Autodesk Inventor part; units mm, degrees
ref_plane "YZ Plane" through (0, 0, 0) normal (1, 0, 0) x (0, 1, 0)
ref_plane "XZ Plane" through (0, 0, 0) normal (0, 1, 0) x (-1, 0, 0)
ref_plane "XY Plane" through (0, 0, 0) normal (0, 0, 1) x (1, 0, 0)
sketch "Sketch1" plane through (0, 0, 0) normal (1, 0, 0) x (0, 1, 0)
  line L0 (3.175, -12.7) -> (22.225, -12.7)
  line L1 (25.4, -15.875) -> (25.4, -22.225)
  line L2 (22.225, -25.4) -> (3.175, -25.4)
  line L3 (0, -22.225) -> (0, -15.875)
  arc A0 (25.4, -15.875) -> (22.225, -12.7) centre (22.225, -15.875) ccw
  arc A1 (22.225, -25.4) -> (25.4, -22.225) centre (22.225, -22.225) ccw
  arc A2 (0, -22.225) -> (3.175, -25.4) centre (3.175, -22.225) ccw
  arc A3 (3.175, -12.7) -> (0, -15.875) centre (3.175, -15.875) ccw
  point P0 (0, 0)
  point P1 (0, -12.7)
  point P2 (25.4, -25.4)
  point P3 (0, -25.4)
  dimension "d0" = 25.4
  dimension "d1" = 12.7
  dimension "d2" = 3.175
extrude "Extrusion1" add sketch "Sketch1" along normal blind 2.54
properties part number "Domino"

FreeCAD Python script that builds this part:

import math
import FreeCAD as App
import Part
import Sketcher

V = App.Vector
Q = App.Units.Quantity

doc = App.newDocument("Part")
body = doc.addObject("PartDesign::Body", "Body")

# Sketch on YZ plane
sketch1 = body.newObject("Sketcher::SketchObject", "Sketch")
sketch1.AttachmentSupport = (doc.getObject("YZ_Plane"), [""])
sketch1.MapMode = "FlatFace"
sketch1.addGeometry(Part.LineSegment(V(22.225, -12.7, 0), V(3.175, -12.7, 0)), False)
sketch1.addGeometry(Part.ArcOfCircle(Part.Circle(V(3.175, -15.875, 0), V(0, 0, 1), 3.175), math.radians(90), math.radians(180)), False)
sketch1.addGeometry(Part.LineSegment(V(0, -15.875, 0), V(0, -22.225, 0)), False)
sketch1.addGeometry(Part.ArcOfCircle(Part.Circle(V(3.175, -22.225, 0), V(0, 0, 1), 3.175), math.radians(180), math.radians(270)), False)
sketch1.addGeometry(Part.LineSegment(V(3.175, -25.4, 0), V(22.225, -25.4, 0)), False)
sketch1.addGeometry(Part.ArcOfCircle(Part.Circle(V(22.225, -22.225, 0), V(0, 0, 1), 3.175), math.radians(-90), math.radians(0)), False)
sketch1.addGeometry(Part.LineSegment(V(25.4, -22.225, 0), V(25.4, -15.875, 0)), False)
sketch1.addGeometry(Part.ArcOfCircle(Part.Circle(V(22.225, -15.875, 0), V(0, 0, 1), 3.175), math.radians(0), math.radians(90)), False)
sketch1.addConstraint(Sketcher.Constraint("Tangent", 0, 2, 1, 1))
sketch1.addConstraint(Sketcher.Constraint("Tangent", 1, 2, 2, 1))
sketch1.addConstraint(Sketcher.Constraint("Tangent", 2, 2, 3, 1))
sketch1.addConstraint(Sketcher.Constraint("Tangent", 3, 2, 4, 1))
sketch1.addConstraint(Sketcher.Constraint("Tangent", 4, 2, 5, 1))
sketch1.addConstraint(Sketcher.Constraint("Tangent", 5, 2, 6, 1))
sketch1.addConstraint(Sketcher.Constraint("Tangent", 6, 2, 7, 1))
sketch1.addConstraint(Sketcher.Constraint("Tangent", 7, 2, 0, 1))
sketch1.addConstraint(Sketcher.Constraint("Horizontal", 0))
sketch1.addConstraint(Sketcher.Constraint("Vertical", 2))
sketch1.addConstraint(Sketcher.Constraint("Horizontal", 4))
sketch1.addConstraint(Sketcher.Constraint("Vertical", 6))
sketch1.addConstraint(Sketcher.Constraint("Equal", 1, 3))
sketch1.addConstraint(Sketcher.Constraint("Equal", 3, 5))
sketch1.addConstraint(Sketcher.Constraint("Equal", 5, 7))
sketch1.addConstraint(Sketcher.Constraint("PointOnObject", 1, 2, -2))
sketch1.addConstraint(Sketcher.Constraint("DistanceY", 3, 2, -1, 1, Q("1 in")))
sketch1.addConstraint(Sketcher.Constraint("DistanceX", -1, 1, 5, 2, Q("1 in")))
sketch1.addConstraint(Sketcher.Constraint("Radius", 1, Q("0.125 in")))
sketch1.addConstraint(Sketcher.Constraint("DistanceY", 0, 2, -1, 1, Q("0.5 in")))
pad1 = body.newObject("PartDesign::Pad", "Pad")
pad1.Profile = sketch1
pad1.Length = Q("0.1 in")

doc.recompute()
